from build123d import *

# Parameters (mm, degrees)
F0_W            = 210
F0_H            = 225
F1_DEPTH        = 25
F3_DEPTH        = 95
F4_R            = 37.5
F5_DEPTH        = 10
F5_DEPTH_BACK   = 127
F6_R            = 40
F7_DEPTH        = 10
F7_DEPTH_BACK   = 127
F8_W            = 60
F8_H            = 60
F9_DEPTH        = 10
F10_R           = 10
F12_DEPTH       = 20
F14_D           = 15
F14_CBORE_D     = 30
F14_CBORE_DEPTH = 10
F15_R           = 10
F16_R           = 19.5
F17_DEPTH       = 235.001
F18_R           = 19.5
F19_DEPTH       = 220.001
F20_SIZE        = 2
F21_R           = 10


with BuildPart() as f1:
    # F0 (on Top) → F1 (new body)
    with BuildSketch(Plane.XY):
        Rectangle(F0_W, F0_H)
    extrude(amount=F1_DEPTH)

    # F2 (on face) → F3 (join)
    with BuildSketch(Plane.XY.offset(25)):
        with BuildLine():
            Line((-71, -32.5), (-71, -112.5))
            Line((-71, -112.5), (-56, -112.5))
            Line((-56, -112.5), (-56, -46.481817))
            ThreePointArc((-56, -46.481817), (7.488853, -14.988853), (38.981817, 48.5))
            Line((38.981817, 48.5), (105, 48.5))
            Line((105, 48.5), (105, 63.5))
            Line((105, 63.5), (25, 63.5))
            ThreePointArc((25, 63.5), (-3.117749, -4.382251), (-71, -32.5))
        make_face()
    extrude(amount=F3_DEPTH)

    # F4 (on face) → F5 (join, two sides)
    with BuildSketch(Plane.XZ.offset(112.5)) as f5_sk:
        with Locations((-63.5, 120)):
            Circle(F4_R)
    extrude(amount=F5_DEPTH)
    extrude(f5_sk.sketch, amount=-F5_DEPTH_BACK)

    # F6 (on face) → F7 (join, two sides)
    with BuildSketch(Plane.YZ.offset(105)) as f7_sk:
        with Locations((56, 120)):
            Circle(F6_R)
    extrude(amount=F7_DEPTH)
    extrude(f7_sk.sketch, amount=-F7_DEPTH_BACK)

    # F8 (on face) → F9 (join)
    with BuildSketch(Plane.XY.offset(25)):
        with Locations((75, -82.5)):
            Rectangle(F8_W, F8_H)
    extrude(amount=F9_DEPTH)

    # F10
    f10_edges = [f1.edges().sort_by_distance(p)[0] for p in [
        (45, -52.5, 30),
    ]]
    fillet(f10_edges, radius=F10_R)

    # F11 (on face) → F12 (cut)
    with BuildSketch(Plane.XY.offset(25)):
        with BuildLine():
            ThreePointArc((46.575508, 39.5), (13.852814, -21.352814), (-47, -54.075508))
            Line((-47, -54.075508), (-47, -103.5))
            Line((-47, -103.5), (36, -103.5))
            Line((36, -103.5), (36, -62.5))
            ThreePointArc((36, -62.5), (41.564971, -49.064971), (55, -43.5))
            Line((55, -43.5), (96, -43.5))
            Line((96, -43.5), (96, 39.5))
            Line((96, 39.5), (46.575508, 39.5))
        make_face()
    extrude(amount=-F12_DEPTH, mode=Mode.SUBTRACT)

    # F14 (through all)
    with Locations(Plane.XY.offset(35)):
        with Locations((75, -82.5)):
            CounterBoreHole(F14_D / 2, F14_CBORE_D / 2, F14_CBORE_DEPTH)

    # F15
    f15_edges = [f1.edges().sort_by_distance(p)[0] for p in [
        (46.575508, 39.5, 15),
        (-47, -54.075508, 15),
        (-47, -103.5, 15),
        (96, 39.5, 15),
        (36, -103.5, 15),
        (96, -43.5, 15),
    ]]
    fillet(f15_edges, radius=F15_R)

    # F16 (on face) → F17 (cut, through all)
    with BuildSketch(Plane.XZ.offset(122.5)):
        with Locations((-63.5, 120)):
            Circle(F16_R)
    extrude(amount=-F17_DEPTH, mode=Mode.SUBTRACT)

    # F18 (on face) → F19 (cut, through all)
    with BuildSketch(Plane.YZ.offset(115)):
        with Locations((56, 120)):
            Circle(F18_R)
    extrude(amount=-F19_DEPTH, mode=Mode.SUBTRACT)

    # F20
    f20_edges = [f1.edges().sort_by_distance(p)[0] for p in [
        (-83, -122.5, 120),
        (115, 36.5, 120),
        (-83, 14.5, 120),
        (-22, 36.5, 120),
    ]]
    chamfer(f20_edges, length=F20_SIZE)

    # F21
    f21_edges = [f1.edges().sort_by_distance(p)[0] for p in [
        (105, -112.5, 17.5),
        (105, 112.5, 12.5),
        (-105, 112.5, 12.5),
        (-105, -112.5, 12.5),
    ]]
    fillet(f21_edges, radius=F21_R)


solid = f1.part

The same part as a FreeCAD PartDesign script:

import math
import FreeCAD as App
import Part
import Sketcher


def edges_at(feature, points):
    """Names of the edges that pass closest to the given points."""
    edges = feature.Shape.Edges
    near = lambda p: min(range(len(edges)), key=lambda i: edges[i].distToShape(Part.Vertex(*p))[0])
    return sorted({f"Edge{near(p) + 1}" for p in points})

doc = App.newDocument("Part")
body = doc.addObject("PartDesign::Body", "Body")

sketch1 = body.newObject("Sketcher::SketchObject", "Sketch")
sketch1.AttachmentSupport = (doc.getObject("XY_Plane"), [""])
sketch1.MapMode = "FlatFace"
sketch1.addGeometry(Part.LineSegment(App.Vector(-105, 112, 0), App.Vector(-105, -112, 0)), False)
sketch1.addGeometry(Part.LineSegment(App.Vector(-105, -112, 0), App.Vector(105, -112, 0)), False)
sketch1.addGeometry(Part.LineSegment(App.Vector(105, -112, 0), App.Vector(105, 112, 0)), False)
sketch1.addGeometry(Part.LineSegment(App.Vector(105, 112, 0), App.Vector(-105, 112, 0)), False)
sketch1.addConstraint(Sketcher.Constraint("Coincident", 0, 2, 1, 1))
sketch1.addConstraint(Sketcher.Constraint("Coincident", 1, 2, 2, 1))
sketch1.addConstraint(Sketcher.Constraint("Coincident", 2, 2, 3, 1))
sketch1.addConstraint(Sketcher.Constraint("Coincident", 3, 2, 0, 1))
sketch1.addConstraint(Sketcher.Constraint("Vertical", 0))
sketch1.addConstraint(Sketcher.Constraint("Horizontal", 1))
sketch1.addConstraint(Sketcher.Constraint("Vertical", 2))
sketch1.addConstraint(Sketcher.Constraint("Horizontal", 3))
sketch1.addConstraint(Sketcher.Constraint("Symmetric", 0, 2, 2, 2, -1, 1))
sketch1.addConstraint(Sketcher.Constraint("DistanceX", 1, 1, 1, 2, 210.0))
sketch1.addConstraint(Sketcher.Constraint("DistanceY", 0, 2, 0, 1, 225.0))
pad1 = body.newObject("PartDesign::Pad", "Pad")
pad1.Profile = sketch1
pad1.Length = 25

sketch2 = body.newObject("Sketcher::SketchObject", "Sketch001")
sketch2.AttachmentSupport = (doc.getObject("XY_Plane"), [""])
sketch2.MapMode = "FlatFace"
sketch2.AttachmentOffset = App.Placement(App.Vector(0, 0, 25), App.Rotation())
sketch2.addGeometry(Part.LineSegment(App.Vector(-71, -32, 0), App.Vector(-71, -112, 0)), False)
sketch2.addGeometry(Part.LineSegment(App.Vector(-71, -112, 0), App.Vector(-56, -112, 0)), False)
sketch2.addGeometry(Part.LineSegment(App.Vector(-56, -112, 0), App.Vector(-56, -46, 0)), False)
sketch2.addGeometry(Part.ArcOfCircle(Part.Circle(App.Vector(-71, 63, 0), App.Vector(0, 0, 1), 111), math.radians(-82), math.radians(-8)), False)
sketch2.addGeometry(Part.LineSegment(App.Vector(39, 48, 0), App.Vector(105, 48, 0)), False)
sketch2.addGeometry(Part.LineSegment(App.Vector(105, 48, 0), App.Vector(105, 64, 0)), False)
sketch2.addGeometry(Part.LineSegment(App.Vector(105, 64, 0), App.Vector(25, 64, 0)), False)
sketch2.addGeometry(Part.ArcOfCircle(Part.Circle(App.Vector(-71, 63, 0), App.Vector(0, 0, 1), 96), math.radians(-90), math.radians(0)), False)
sketch2.addConstraint(Sketcher.Constraint("Coincident", 0, 2, 1, 1))
sketch2.addConstraint(Sketcher.Constraint("Coincident", 1, 2, 2, 1))
sketch2.addConstraint(Sketcher.Constraint("Coincident", 2, 2, 3, 1))
sketch2.addConstraint(Sketcher.Constraint("Coincident", 3, 2, 4, 1))
sketch2.addConstraint(Sketcher.Constraint("Coincident", 4, 2, 5, 1))
sketch2.addConstraint(Sketcher.Constraint("Coincident", 5, 2, 6, 1))
sketch2.addConstraint(Sketcher.Constraint("Coincident", 6, 2, 7, 2))
sketch2.addConstraint(Sketcher.Constraint("Coincident", 7, 1, 0, 1))
sketch2.addConstraint(Sketcher.Constraint("Vertical", 0))
sketch2.addConstraint(Sketcher.Constraint("Horizontal", 1))
sketch2.addConstraint(Sketcher.Constraint("Vertical", 2))
sketch2.addConstraint(Sketcher.Constraint("Horizontal", 4))
sketch2.addConstraint(Sketcher.Constraint("Vertical", 5))
sketch2.addConstraint(Sketcher.Constraint("Horizontal", 6))
sketch2.addConstraint(Sketcher.Constraint("Coincident", 7, 3, 3, 3))
sketch2.addConstraint(Sketcher.Constraint("Horizontal", 7, 3, 5, 2))
sketch2.addConstraint(Sketcher.Constraint("Vertical", 7, 3, 0, 2))
sketch2.addConstraint(Sketcher.Constraint("Equal", 6, 0))
sketch2.addConstraint(Sketcher.Constraint("Equal", 4, 2))
sketch2.addConstraint(Sketcher.Constraint("Radius", 3, 111.0))
sketch2.addConstraint(Sketcher.Constraint("Radius", 7, 96.0))
sketch2.addConstraint(Sketcher.Constraint("DistanceX", 1, 1, 1, 2, 15.0))
sketch2.addConstraint(Sketcher.Constraint("DistanceX", 6, 2, 6, 1, 80.0))
sketch2.addConstraint(Sketcher.Constraint("DistanceX", 3, 3, -1, 1, 71.0))
sketch2.addConstraint(Sketcher.Constraint("DistanceY", -1, 1, 3, 3, 63.5))
pad2 = body.newObject("PartDesign::Pad", "Pad001")
pad2.Profile = sketch2
pad2.Length = 95

sketch3 = body.newObject("Sketcher::SketchObject", "Sketch002")
sketch3.AttachmentSupport = (doc.getObject("XZ_Plane"), [""])
sketch3.MapMode = "FlatFace"
sketch3.AttachmentOffset = App.Placement(App.Vector(0, 0, 112.5), App.Rotation())
sketch3.addGeometry(Part.Circle(App.Vector(-64, 120, 0), App.Vector(0, 0, 1), 38), False)
sketch3.addConstraint(Sketcher.Constraint("Diameter", 0, 75.0))
sketch3.addConstraint(Sketcher.Constraint("DistanceY", -1, 1, 0, 3, 120.0))
sketch3.addConstraint(Sketcher.Constraint("DistanceX", 0, 3, -1, 1, 63.5))
pad3 = body.newObject("PartDesign::Pad", "Pad002")
pad3.Profile = sketch3
pad3.Type = "TwoLengths"
pad3.Length = 10
pad3.Length2 = 127

sketch4 = body.newObject("Sketcher::SketchObject", "Sketch003")
sketch4.AttachmentSupport = (doc.getObject("YZ_Plane"), [""])
sketch4.MapMode = "FlatFace"
sketch4.AttachmentOffset = App.Placement(App.Vector(0, 0, 105), App.Rotation())
sketch4.addGeometry(Part.Circle(App.Vector(56, 120, 0), App.Vector(0, 0, 1), 40), False)
sketch4.addConstraint(Sketcher.Constraint("Diameter", 0, 80.0))
sketch4.addConstraint(Sketcher.Constraint("DistanceX", -1, 1, 0, 3, 56.0))
sketch4.addConstraint(Sketcher.Constraint("DistanceY", -1, 1, 0, 3, 120.0))
pad4 = body.newObject("PartDesign::Pad", "Pad003")
pad4.Profile = sketch4
pad4.Type = "TwoLengths"
pad4.Length = 10
pad4.Length2 = 127

sketch5 = body.newObject("Sketcher::SketchObject", "Sketch004")
sketch5.AttachmentSupport = (doc.getObject("XY_Plane"), [""])
sketch5.MapMode = "FlatFace"
sketch5.AttachmentOffset = App.Placement(App.Vector(0, 0, 25), App.Rotation())
sketch5.addGeometry(Part.LineSegment(App.Vector(45, -52, 0), App.Vector(45, -112, 0)), False)
sketch5.addGeometry(Part.LineSegment(App.Vector(45, -112, 0), App.Vector(105, -112, 0)), False)
sketch5.addGeometry(Part.LineSegment(App.Vector(105, -112, 0), App.Vector(105, -52, 0)), False)
sketch5.addGeometry(Part.LineSegment(App.Vector(105, -52, 0), App.Vector(45, -52, 0)), False)
sketch5.addConstraint(Sketcher.Constraint("Coincident", 0, 2, 1, 1))
sketch5.addConstraint(Sketcher.Constraint("Coincident", 1, 2, 2, 1))
sketch5.addConstraint(Sketcher.Constraint("Coincident", 2, 2, 3, 1))
sketch5.addConstraint(Sketcher.Constraint("Coincident", 3, 2, 0, 1))
sketch5.addConstraint(Sketcher.Constraint("Vertical", 0))
sketch5.addConstraint(Sketcher.Constraint("Horizontal", 1))
sketch5.addConstraint(Sketcher.Constraint("Vertical", 2))
sketch5.addConstraint(Sketcher.Constraint("Horizontal", 3))
sketch5.addConstraint(Sketcher.Constraint("Equal", 3, 0))
sketch5.addConstraint(Sketcher.Constraint("DistanceX", 1, 1, 1, 2, 60.0))
sketch5.addConstraint(Sketcher.Constraint("DistanceX", -1, 1, 0, 2, 45.0))
sketch5.addConstraint(Sketcher.Constraint("DistanceY", 0, 2, -1, 1, 112.5))
pad5 = body.newObject("PartDesign::Pad", "Pad004")
pad5.Profile = sketch5
pad5.Length = 10
doc.recompute()

fillet = body.newObject("PartDesign::Fillet", "Fillet")
fillet.Base = (pad5, edges_at(pad5, [(45, -52.5, 30)]))
fillet.Radius = 10

sketch6 = body.newObject("Sketcher::SketchObject", "Sketch005")
sketch6.AttachmentSupport = (doc.getObject("XY_Plane"), [""])
sketch6.MapMode = "FlatFace"
sketch6.AttachmentOffset = App.Placement(App.Vector(0, 0, 25), App.Rotation())
sketch6.addGeometry(Part.ArcOfCircle(Part.Circle(App.Vector(-71, 63, 0), App.Vector(0, 0, 1), 120), math.radians(-78), math.radians(-12)), False)
sketch6.addGeometry(Part.LineSegment(App.Vector(-47, -54, 0), App.Vector(-47, -104, 0)), False)
sketch6.addGeometry(Part.LineSegment(App.Vector(-47, -104, 0), App.Vector(36, -104, 0)), False)
sketch6.addGeometry(Part.LineSegment(App.Vector(36, -104, 0), App.Vector(36, -62, 0)), False)
sketch6.addGeometry(Part.ArcOfCircle(Part.Circle(App.Vector(55, -62, 0), App.Vector(0, 0, 1), 19), math.radians(90), math.radians(180)), False)
sketch6.addGeometry(Part.LineSegment(App.Vector(55, -44, 0), App.Vector(96, -44, 0)), False)
sketch6.addGeometry(Part.LineSegment(App.Vector(96, -44, 0), App.Vector(96, 40, 0)), False)
sketch6.addGeometry(Part.LineSegment(App.Vector(96, 40, 0), App.Vector(47, 40, 0)), False)
sketch6.addConstraint(Sketcher.Constraint("Coincident", 0, 1, 1, 1))
sketch6.addConstraint(Sketcher.Constraint("Coincident", 1, 2, 2, 1))
sketch6.addConstraint(Sketcher.Constraint("Coincident", 2, 2, 3, 1))
sketch6.addConstraint(Sketcher.Constraint("Tangent", 3, 2, 4, 2))
sketch6.addConstraint(Sketcher.Constraint("Tangent", 4, 1, 5, 1))
sketch6.addConstraint(Sketcher.Constraint("Coincident", 5, 2, 6, 1))
sketch6.addConstraint(Sketcher.Constraint("Coincident", 6, 2, 7, 1))
sketch6.addConstraint(Sketcher.Constraint("Coincident", 7, 2, 0, 2))
sketch6.addConstraint(Sketcher.Constraint("Vertical", 1))
sketch6.addConstraint(Sketcher.Constraint("Horizontal", 2))
sketch6.addConstraint(Sketcher.Constraint("Vertical", 3))
sketch6.addConstraint(Sketcher.Constraint("Horizontal", 5))
sketch6.addConstraint(Sketcher.Constraint("Vertical", 6))
sketch6.addConstraint(Sketcher.Constraint("Horizontal", 7))
sketch6.addConstraint(Sketcher.Constraint("Equal", 7, 1))
sketch6.addConstraint(Sketcher.Constraint("Equal", 5, 3))
sketch6.addConstraint(Sketcher.Constraint("Equal", 2, 6))
sketch6.addConstraint(Sketcher.Constraint("Radius", 0, 120.0))
sketch6.addConstraint(Sketcher.Constraint("Radius", 4, 18.999999))
sketch6.addConstraint(Sketcher.Constraint("DistanceX", 2, 1, 2, 2, 83.0))
sketch6.addConstraint(Sketcher.Constraint("DistanceX", 5, 1, 5, 2, 41.0))
sketch6.addConstraint(Sketcher.Constraint("DistanceX", 0, 3, -1, 1, 71.0))
sketch6.addConstraint(Sketcher.Constraint("DistanceX", -1, 1, 4, 3, 54.999999))
sketch6.addConstraint(Sketcher.Constraint("DistanceY", -1, 1, 0, 3, 63.5))
pocket1 = body.newObject("PartDesign::Pocket", "Pocket")
pocket1.Profile = sketch6
pocket1.Length = 20

sketch7 = body.newObject("Sketcher::SketchObject", "Sketch006")
sketch7.AttachmentSupport = (doc.getObject("XY_Plane"), [""])
sketch7.MapMode = "FlatFace"
sketch7.AttachmentOffset = App.Placement(App.Vector(0, 0, 35), App.Rotation())
sketch7.addGeometry(Part.Circle(App.Vector(75, -82, 0), App.Vector(0, 0, 1), 8), False)
sketch7.addConstraint(Sketcher.Constraint("Diameter", 0, 15.0))
sketch7.addConstraint(Sketcher.Constraint("DistanceX", -1, 1, 0, 3, 75.0))
sketch7.addConstraint(Sketcher.Constraint("DistanceY", 0, 3, -1, 1, 82.5))
doc.recompute()
hole = body.newObject("PartDesign::Hole", "Hole")
hole.Profile = sketch7
hole.ThreadType = "None"
hole.Diameter = 15
hole.DepthType = "ThroughAll"
hole.HoleCutType = "Counterbore"
hole.HoleCutDiameter = 30
hole.HoleCutDepth = 10
doc.recompute()

fillet2 = body.newObject("PartDesign::Fillet", "Fillet001")
fillet2.Base = (hole, edges_at(hole, [
    (46.576, 39.5, 15),
    (-47, -54.076, 15),
    (-47, -103.5, 15),
    (96, 39.5, 15),
    (36, -103.5, 15),
    (96, -43.5, 15),
]))
fillet2.Radius = 10

sketch8 = body.newObject("Sketcher::SketchObject", "Sketch007")
sketch8.AttachmentSupport = (doc.getObject("XZ_Plane"), [""])
sketch8.MapMode = "FlatFace"
sketch8.AttachmentOffset = App.Placement(App.Vector(0, 0, 122.5), App.Rotation())
sketch8.addGeometry(Part.Circle(App.Vector(-64, 120, 0), App.Vector(0, 0, 1), 20), False)
sketch8.addConstraint(Sketcher.Constraint("Diameter", 0, 39.0))
sketch8.addConstraint(Sketcher.Constraint("DistanceY", -1, 1, 0, 3, 120.0))
sketch8.addConstraint(Sketcher.Constraint("DistanceX", 0, 3, -1, 1, 63.5))
pocket2 = body.newObject("PartDesign::Pocket", "Pocket001")
pocket2.Profile = sketch8
pocket2.Type = "ThroughAll"

sketch9 = body.newObject("Sketcher::SketchObject", "Sketch008")
sketch9.AttachmentSupport = (doc.getObject("YZ_Plane"), [""])
sketch9.MapMode = "FlatFace"
sketch9.AttachmentOffset = App.Placement(App.Vector(0, 0, 115), App.Rotation())
sketch9.addGeometry(Part.Circle(App.Vector(56, 120, 0), App.Vector(0, 0, 1), 20), False)
sketch9.addConstraint(Sketcher.Constraint("Diameter", 0, 39.0))
sketch9.addConstraint(Sketcher.Constraint("DistanceX", -1, 1, 0, 3, 56.0))
sketch9.addConstraint(Sketcher.Constraint("DistanceY", -1, 1, 0, 3, 120.0))
pocket3 = body.newObject("PartDesign::Pocket", "Pocket002")
pocket3.Profile = sketch9
pocket3.Type = "ThroughAll"
doc.recompute()

chamfer = body.newObject("PartDesign::Chamfer", "Chamfer")
chamfer.Base = (pocket3, edges_at(pocket3, [
    (-83, -122.5, 120),
    (115, 36.5, 120),
    (-83, 14.5, 120),
    (-22, 36.5, 120),
]))
chamfer.Size = 2
doc.recompute()

fillet3 = body.newObject("PartDesign::Fillet", "Fillet002")
fillet3.Base = (chamfer, edges_at(chamfer, [
    (105, -112.5, 17.5),
    (105, 112.5, 12.5),
    (-105, 112.5, 12.5),
    (-105, -112.5, 12.5),
]))
fillet3.Radius = 10

doc.recompute()
